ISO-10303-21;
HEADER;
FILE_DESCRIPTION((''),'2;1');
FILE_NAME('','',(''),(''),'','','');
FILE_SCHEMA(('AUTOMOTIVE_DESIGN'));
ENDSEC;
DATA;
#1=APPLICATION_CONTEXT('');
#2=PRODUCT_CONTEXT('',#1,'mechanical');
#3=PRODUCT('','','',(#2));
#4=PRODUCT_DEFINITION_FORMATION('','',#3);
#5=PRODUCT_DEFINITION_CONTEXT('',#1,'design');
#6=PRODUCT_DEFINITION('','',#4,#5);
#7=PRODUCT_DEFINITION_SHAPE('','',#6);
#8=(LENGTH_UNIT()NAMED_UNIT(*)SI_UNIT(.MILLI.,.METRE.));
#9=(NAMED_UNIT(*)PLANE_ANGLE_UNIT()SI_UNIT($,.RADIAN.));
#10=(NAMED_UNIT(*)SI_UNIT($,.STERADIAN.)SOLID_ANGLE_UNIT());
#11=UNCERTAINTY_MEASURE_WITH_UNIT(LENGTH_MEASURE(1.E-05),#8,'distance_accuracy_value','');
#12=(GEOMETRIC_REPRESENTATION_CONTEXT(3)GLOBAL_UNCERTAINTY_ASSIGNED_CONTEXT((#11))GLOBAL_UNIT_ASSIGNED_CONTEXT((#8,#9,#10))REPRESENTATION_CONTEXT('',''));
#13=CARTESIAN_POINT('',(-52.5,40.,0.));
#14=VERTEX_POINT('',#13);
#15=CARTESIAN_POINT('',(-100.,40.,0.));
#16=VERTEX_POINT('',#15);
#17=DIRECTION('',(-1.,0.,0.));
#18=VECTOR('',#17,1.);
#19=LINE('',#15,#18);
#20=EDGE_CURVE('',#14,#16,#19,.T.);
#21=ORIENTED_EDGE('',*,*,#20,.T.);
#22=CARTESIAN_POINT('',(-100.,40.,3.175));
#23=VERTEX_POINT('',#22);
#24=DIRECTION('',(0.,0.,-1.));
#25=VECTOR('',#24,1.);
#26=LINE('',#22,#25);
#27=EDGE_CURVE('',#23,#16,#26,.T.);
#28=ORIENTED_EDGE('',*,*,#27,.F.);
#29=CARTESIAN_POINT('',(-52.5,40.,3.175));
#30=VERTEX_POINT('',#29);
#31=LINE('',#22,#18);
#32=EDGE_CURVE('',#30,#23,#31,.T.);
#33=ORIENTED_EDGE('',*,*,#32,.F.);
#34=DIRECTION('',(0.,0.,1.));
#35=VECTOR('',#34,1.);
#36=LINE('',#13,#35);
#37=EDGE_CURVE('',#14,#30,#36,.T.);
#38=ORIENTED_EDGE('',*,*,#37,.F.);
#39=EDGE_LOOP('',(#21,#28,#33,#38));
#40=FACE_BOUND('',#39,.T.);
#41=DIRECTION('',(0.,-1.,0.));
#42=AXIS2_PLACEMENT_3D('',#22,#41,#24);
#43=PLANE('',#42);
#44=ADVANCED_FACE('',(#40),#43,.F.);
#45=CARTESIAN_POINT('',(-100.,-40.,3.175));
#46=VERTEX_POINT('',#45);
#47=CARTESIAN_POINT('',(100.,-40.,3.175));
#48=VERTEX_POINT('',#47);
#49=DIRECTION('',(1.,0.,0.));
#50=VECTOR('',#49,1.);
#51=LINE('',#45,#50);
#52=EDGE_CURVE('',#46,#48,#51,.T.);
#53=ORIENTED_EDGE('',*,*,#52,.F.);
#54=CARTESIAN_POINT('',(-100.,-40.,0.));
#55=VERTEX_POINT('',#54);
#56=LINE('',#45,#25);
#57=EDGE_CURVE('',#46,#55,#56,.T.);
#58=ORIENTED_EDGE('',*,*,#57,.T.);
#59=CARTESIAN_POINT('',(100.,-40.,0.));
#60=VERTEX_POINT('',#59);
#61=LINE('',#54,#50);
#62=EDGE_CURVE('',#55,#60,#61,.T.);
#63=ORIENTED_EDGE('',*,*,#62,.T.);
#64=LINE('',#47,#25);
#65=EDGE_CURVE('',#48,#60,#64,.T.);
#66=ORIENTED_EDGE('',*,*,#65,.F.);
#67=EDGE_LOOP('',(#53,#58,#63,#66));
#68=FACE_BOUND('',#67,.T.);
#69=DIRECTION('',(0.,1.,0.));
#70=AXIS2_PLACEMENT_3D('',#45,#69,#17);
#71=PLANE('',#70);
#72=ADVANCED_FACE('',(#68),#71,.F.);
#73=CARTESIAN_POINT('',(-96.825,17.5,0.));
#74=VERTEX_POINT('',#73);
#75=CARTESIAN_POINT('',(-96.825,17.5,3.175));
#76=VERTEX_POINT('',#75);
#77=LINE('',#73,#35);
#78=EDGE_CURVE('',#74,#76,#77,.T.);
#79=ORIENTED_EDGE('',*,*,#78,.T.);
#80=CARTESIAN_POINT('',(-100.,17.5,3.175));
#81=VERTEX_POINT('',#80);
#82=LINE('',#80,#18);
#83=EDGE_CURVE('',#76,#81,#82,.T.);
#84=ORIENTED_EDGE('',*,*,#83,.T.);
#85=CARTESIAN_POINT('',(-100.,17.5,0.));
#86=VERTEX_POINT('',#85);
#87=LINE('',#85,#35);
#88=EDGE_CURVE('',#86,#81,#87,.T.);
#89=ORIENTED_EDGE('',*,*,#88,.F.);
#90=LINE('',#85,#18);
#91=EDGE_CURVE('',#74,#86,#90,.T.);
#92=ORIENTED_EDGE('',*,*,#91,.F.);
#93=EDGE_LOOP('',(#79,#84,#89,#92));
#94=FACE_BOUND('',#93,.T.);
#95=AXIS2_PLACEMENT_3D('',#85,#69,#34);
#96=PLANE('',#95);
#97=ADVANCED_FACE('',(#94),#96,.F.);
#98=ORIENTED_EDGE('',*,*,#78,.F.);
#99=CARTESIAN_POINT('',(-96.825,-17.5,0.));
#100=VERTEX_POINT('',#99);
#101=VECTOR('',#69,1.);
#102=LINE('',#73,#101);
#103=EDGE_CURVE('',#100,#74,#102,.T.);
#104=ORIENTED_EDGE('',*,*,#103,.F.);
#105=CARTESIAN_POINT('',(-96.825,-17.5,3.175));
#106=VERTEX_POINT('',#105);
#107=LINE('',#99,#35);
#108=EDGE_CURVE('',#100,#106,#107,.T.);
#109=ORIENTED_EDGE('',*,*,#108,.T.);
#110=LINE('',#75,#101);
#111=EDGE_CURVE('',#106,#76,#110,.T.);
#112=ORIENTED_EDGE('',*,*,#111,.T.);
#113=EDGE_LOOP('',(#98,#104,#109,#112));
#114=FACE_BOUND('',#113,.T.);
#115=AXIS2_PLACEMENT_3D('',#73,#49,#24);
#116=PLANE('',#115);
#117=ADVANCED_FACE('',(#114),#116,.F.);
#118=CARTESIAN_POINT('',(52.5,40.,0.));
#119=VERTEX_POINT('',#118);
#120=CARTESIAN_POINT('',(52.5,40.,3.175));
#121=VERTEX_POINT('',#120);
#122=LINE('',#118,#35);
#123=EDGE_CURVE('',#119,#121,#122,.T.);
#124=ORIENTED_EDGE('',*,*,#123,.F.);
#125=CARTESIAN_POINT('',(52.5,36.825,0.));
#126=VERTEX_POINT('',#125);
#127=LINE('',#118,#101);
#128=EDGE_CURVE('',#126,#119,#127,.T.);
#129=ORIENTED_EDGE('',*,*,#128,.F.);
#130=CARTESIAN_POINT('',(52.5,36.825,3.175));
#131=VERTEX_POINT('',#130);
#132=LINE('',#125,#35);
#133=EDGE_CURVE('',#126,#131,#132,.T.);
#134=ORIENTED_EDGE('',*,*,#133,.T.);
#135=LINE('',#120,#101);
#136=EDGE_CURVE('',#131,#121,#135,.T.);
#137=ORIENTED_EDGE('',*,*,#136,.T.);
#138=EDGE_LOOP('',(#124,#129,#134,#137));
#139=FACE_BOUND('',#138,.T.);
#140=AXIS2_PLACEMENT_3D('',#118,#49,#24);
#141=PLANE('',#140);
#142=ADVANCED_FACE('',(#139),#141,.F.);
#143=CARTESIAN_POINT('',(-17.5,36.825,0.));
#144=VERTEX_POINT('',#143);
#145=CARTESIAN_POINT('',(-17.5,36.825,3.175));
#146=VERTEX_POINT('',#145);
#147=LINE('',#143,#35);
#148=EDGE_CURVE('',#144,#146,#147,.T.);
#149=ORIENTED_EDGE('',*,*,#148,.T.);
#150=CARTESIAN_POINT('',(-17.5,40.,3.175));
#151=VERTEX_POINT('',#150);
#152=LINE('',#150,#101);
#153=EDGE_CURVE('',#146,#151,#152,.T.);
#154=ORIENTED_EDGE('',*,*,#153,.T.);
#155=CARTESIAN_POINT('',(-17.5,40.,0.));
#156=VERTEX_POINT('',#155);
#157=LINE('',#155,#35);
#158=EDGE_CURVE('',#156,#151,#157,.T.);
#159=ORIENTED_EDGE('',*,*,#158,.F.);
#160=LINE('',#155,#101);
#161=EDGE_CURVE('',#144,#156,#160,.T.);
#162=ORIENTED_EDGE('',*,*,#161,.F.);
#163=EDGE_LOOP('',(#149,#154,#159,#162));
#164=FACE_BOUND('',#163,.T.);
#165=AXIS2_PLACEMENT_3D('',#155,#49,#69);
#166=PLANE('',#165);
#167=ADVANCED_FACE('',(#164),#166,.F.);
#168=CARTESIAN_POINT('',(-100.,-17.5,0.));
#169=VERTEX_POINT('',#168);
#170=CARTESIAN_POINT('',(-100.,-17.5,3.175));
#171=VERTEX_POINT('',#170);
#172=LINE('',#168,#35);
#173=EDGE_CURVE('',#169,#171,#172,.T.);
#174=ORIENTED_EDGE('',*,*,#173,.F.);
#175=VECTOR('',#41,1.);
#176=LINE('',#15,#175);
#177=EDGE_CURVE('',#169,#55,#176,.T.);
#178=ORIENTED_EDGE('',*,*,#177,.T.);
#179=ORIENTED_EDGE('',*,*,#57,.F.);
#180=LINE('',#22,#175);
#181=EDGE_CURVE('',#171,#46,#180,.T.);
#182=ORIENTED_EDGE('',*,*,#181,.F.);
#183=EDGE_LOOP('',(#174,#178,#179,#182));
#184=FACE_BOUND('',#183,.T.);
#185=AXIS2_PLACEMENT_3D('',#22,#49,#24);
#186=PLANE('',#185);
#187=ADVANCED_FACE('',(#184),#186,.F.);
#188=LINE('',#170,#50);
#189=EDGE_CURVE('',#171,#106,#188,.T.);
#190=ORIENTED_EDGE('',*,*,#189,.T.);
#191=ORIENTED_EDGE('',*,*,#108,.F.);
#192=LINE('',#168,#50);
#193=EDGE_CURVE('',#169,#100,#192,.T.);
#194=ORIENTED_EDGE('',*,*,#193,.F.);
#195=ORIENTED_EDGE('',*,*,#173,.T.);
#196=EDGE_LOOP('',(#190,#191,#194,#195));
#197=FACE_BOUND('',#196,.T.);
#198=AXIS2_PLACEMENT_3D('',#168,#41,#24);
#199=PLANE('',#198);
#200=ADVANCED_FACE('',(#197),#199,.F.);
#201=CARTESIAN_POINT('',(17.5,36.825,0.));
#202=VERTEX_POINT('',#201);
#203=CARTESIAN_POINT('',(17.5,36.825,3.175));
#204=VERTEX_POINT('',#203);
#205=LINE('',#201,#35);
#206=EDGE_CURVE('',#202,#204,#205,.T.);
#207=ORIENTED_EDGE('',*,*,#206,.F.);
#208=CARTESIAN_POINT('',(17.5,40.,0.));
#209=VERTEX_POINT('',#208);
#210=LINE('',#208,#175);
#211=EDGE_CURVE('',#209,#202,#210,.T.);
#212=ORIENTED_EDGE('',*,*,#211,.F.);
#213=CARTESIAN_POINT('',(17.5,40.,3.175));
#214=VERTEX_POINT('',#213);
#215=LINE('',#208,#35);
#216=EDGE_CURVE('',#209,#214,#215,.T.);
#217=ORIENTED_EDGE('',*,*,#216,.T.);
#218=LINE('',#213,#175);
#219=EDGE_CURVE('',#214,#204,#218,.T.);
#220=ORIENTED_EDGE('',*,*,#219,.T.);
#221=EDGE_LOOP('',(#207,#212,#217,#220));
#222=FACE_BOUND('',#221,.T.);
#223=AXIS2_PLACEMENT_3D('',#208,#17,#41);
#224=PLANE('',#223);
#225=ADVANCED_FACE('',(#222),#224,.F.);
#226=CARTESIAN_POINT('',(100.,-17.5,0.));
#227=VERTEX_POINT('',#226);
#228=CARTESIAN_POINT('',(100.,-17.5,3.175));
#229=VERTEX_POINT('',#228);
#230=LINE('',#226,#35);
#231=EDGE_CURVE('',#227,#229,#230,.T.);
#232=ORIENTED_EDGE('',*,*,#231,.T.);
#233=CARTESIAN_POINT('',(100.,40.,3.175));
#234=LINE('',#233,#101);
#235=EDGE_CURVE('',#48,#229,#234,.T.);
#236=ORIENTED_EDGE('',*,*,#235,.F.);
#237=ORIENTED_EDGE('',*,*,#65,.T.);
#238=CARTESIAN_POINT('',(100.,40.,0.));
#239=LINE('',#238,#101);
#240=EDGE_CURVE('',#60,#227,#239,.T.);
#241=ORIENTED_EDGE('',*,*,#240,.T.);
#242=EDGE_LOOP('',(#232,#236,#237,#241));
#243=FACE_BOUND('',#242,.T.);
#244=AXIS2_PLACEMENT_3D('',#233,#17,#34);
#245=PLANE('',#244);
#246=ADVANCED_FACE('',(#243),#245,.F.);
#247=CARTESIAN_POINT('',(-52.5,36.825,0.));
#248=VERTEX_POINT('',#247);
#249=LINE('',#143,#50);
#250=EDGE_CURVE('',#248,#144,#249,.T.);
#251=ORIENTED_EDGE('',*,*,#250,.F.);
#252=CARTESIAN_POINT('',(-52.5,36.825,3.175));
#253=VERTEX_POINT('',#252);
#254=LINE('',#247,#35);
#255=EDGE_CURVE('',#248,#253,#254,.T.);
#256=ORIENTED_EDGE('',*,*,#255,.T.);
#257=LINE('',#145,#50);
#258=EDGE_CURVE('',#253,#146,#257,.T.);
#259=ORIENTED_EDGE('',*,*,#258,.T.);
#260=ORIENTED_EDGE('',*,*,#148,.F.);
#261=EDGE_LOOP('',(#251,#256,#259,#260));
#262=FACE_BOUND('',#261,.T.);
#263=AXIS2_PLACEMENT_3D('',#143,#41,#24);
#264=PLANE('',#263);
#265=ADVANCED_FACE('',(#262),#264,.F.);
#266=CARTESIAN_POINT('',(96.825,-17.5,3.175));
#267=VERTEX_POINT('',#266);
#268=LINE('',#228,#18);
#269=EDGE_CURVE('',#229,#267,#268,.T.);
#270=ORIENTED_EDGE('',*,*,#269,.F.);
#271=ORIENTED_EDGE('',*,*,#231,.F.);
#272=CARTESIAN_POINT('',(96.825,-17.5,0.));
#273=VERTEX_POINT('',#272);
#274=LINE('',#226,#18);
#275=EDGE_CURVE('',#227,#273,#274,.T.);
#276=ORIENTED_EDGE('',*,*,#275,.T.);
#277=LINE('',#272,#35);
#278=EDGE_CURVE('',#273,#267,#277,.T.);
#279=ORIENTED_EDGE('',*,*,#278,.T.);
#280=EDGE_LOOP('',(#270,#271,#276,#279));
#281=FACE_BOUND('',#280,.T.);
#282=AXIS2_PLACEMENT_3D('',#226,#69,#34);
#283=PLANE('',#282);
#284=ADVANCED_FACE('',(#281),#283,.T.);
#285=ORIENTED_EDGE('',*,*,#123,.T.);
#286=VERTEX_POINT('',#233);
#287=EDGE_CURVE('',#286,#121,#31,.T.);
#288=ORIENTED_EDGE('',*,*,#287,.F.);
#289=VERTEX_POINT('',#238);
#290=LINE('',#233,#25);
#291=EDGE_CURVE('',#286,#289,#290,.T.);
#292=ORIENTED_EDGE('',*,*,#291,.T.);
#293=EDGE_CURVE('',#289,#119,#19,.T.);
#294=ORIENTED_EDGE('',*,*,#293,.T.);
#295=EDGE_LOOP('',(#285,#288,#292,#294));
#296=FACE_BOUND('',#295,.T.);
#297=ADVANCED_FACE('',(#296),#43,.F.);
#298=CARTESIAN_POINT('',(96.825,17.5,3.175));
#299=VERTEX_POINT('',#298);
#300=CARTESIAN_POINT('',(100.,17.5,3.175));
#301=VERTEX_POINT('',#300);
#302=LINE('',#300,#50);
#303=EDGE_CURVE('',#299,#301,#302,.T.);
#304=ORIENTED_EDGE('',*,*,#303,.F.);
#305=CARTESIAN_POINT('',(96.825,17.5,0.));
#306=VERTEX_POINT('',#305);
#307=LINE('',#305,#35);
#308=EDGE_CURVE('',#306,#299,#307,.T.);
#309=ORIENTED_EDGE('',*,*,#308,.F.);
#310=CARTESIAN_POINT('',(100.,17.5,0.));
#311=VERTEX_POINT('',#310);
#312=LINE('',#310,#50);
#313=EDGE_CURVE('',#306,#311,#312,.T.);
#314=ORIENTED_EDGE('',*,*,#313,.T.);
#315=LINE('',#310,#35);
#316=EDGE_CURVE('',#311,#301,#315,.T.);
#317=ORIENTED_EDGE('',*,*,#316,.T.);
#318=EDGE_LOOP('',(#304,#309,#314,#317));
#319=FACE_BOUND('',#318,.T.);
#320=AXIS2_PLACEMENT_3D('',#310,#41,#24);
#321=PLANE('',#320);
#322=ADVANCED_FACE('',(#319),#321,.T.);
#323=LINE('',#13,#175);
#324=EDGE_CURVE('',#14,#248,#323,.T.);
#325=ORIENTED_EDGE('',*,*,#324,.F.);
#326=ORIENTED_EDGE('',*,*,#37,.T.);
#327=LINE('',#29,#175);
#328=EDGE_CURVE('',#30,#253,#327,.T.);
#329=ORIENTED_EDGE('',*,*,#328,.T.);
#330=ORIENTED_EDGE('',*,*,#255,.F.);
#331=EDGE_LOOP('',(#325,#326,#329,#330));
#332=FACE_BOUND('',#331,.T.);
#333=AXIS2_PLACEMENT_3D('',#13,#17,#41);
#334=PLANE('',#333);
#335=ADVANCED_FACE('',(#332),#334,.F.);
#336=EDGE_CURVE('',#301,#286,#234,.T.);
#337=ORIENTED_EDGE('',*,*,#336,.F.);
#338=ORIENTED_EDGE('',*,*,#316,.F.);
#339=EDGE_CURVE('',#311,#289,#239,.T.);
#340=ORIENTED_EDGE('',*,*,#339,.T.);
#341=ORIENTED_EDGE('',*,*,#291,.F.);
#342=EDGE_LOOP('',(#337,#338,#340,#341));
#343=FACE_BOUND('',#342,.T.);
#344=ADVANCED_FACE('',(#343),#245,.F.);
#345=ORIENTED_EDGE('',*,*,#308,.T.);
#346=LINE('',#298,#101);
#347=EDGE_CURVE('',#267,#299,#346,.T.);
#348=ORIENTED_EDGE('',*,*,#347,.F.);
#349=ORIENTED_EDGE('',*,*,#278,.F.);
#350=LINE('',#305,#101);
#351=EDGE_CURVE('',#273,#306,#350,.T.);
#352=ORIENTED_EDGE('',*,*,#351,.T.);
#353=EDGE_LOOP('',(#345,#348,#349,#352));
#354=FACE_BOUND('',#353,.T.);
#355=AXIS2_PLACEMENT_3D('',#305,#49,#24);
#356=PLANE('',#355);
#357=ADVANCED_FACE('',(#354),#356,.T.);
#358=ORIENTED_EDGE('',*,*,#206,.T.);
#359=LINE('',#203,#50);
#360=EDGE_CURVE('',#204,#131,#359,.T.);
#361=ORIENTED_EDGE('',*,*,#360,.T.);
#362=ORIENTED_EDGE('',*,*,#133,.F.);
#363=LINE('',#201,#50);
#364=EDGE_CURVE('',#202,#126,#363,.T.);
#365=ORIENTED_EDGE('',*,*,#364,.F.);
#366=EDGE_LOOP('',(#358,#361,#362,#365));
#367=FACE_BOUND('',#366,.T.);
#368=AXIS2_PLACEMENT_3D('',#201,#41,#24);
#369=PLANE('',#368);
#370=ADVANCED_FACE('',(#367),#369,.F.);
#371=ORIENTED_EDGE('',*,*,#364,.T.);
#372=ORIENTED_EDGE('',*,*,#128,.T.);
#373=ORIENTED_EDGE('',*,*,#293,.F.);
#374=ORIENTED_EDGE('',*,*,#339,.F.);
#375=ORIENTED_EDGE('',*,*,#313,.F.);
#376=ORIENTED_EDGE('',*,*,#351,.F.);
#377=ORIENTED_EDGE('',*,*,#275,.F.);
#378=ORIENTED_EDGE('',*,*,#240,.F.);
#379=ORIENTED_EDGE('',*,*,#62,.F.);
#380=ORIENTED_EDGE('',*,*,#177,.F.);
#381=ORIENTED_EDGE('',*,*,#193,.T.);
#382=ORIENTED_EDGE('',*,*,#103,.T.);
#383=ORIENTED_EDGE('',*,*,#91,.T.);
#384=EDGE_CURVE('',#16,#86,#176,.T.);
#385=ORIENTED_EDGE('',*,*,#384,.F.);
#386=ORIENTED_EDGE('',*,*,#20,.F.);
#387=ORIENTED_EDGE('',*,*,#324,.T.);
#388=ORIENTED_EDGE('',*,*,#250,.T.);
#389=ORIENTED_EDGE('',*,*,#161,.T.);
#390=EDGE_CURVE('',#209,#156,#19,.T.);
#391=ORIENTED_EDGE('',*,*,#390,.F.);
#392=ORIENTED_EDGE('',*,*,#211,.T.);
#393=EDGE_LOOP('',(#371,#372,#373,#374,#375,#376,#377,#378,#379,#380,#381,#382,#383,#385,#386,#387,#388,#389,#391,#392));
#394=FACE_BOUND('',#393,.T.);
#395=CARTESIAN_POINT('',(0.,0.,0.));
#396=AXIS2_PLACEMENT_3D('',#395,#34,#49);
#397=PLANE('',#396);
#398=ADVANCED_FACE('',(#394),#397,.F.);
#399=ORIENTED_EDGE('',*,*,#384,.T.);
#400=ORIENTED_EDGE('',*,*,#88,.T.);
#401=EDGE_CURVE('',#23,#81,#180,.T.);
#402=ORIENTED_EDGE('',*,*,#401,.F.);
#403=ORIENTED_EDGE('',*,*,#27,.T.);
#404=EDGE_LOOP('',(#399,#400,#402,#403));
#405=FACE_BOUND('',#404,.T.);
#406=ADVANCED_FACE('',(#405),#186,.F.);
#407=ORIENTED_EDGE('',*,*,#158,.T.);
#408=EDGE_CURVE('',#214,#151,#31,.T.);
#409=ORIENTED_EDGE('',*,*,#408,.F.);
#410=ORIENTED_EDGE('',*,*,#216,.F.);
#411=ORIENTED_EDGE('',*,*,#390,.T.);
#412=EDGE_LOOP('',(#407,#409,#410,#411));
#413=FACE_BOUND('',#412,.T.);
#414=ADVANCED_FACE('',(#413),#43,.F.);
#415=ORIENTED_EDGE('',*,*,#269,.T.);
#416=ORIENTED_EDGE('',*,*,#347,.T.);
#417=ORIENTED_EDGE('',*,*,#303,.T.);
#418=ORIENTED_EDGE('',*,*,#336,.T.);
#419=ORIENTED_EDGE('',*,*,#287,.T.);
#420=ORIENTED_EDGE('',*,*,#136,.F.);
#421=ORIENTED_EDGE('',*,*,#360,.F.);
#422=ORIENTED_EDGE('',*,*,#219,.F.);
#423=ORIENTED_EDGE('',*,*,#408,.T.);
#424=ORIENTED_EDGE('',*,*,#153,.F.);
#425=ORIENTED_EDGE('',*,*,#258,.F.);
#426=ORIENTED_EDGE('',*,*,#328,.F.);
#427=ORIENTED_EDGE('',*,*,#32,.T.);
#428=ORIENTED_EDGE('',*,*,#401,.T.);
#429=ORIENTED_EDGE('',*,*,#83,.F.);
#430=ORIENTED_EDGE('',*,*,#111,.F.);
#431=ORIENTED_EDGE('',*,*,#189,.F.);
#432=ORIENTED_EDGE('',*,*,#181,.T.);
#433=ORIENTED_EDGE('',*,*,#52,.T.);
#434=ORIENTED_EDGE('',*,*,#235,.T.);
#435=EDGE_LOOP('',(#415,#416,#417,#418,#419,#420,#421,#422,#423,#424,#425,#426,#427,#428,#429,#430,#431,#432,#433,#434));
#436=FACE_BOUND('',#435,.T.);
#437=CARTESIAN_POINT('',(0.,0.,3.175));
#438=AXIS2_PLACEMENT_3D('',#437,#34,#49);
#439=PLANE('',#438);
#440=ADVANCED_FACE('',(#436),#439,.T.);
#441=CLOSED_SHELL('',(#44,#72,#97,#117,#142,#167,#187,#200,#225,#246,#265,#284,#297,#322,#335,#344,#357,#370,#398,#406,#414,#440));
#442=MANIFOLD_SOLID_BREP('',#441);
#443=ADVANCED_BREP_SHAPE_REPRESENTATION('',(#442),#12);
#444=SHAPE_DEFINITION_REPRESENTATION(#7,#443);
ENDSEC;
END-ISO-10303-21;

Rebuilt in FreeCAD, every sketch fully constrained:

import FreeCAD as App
import Part
import Sketcher
Q = App.Units.Quantity

doc = App.newDocument("Part")
params = doc.addObject("Spreadsheet::Sheet", "Params")
for row, (alias, value) in enumerate([
    ("sketch1_width", "200 mm"),
    ("sketch1_height", "80 mm"),
    ("pad1_length", "3.175 mm"),
    ("sketch2_width", "35 mm"),
    ("sketch3_height", "35 mm"),
], start=1):
    params.set(f"A{row}", alias)
    params.set(f"B{row}", "=" + value)
    params.setAlias(f"B{row}", alias)

body = doc.addObject("PartDesign::Body", "Body")

# Sketch on XY plane
sketch1 = body.newObject("Sketcher::SketchObject", "Sketch")
sketch1.AttachmentSupport = (doc.getObject("XY_Plane"), [""])
sketch1.MapMode = "FlatFace"
sketch1.addGeometry(Part.LineSegment(App.Vector(-100, 40, 0), App.Vector(-100, -40, 0)), False)
sketch1.addGeometry(Part.LineSegment(App.Vector(-100, -40, 0), App.Vector(100, -40, 0)), False)
sketch1.addGeometry(Part.LineSegment(App.Vector(100, -40, 0), App.Vector(100, 40, 0)), False)
sketch1.addGeometry(Part.LineSegment(App.Vector(100, 40, 0), App.Vector(-100, 40, 0)), False)
sketch1.addConstraint(Sketcher.Constraint("Coincident", 0, 2, 1, 1))
sketch1.addConstraint(Sketcher.Constraint("Coincident", 1, 2, 2, 1))
sketch1.addConstraint(Sketcher.Constraint("Coincident", 2, 2, 3, 1))
sketch1.addConstraint(Sketcher.Constraint("Coincident", 3, 2, 0, 1))
sketch1.addConstraint(Sketcher.Constraint("Vertical", 0))
sketch1.addConstraint(Sketcher.Constraint("Horizontal", 1))
sketch1.addConstraint(Sketcher.Constraint("Vertical", 2))
sketch1.addConstraint(Sketcher.Constraint("Horizontal", 3))
sketch1.addConstraint(Sketcher.Constraint("Symmetric", 0, 2, 2, 2, -1, 1))
sketch1.addConstraint(Sketcher.Constraint("DistanceX", 1, 1, 1, 2, Q("200 mm")))
sketch1.addConstraint(Sketcher.Constraint("DistanceY", 0, 2, 0, 1, Q("80 mm")))
sketch1.setExpression("Constraints[9]", "Params.sketch1_width")
sketch1.setExpression("Constraints[10]", "Params.sketch1_height")
pad1 = body.newObject("PartDesign::Pad", "Pad")
pad1.Profile = sketch1
pad1.setExpression("Length", "Params.pad1_length")

# Sketch on XY plane
sketch2 = body.newObject("Sketcher::SketchObject", "Sketch001")
sketch2.AttachmentSupport = (doc.getObject("XY_Plane"), [""])
sketch2.MapMode = "FlatFace"
sketch2.AttachmentOffset = App.Placement(App.Vector(0, 0, 3.175), App.Rotation())
sketch2.addGeometry(Part.LineSegment(App.Vector(17.5, 40, 0), App.Vector(17.5, 36.8, 0)), False)
sketch2.addGeometry(Part.LineSegment(App.Vector(17.5, 36.8, 0), App.Vector(52.5, 36.8, 0)), False)
sketch2.addGeometry(Part.LineSegment(App.Vector(52.5, 36.8, 0), App.Vector(52.5, 40, 0)), False)
sketch2.addGeometry(Part.LineSegment(App.Vector(52.5, 40, 0), App.Vector(17.5, 40, 0)), False)
sketch2.addGeometry(Part.LineSegment(App.Vector(-52.5, 40, 0), App.Vector(-52.5, 36.8, 0)), False)
sketch2.addGeometry(Part.LineSegment(App.Vector(-52.5, 36.8, 0), App.Vector(-17.5, 36.8, 0)), False)
sketch2.addGeometry(Part.LineSegment(App.Vector(-17.5, 36.8, 0), App.Vector(-17.5, 40, 0)), False)
sketch2.addGeometry(Part.LineSegment(App.Vector(-17.5, 40, 0), App.Vector(-52.5, 40, 0)), False)
sketch2.addConstraint(Sketcher.Constraint("Coincident", 0, 2, 1, 1))
sketch2.addConstraint(Sketcher.Constraint("Coincident", 1, 2, 2, 1))
sketch2.addConstraint(Sketcher.Constraint("Coincident", 2, 2, 3, 1))
sketch2.addConstraint(Sketcher.Constraint("Coincident", 3, 2, 0, 1))
sketch2.addConstraint(Sketcher.Constraint("Coincident", 4, 2, 5, 1))
sketch2.addConstraint(Sketcher.Constraint("Coincident", 5, 2, 6, 1))
sketch2.addConstraint(Sketcher.Constraint("Coincident", 6, 2, 7, 1))
sketch2.addConstraint(Sketcher.Constraint("Coincident", 7, 2, 4, 1))
sketch2.addConstraint(Sketcher.Constraint("Vertical", 0))
sketch2.addConstraint(Sketcher.Constraint("Horizontal", 1))
sketch2.addConstraint(Sketcher.Constraint("Vertical", 2))
sketch2.addConstraint(Sketcher.Constraint("Horizontal", 3))
sketch2.addConstraint(Sketcher.Constraint("Vertical", 4))
sketch2.addConstraint(Sketcher.Constraint("Horizontal", 5))
sketch2.addConstraint(Sketcher.Constraint("Vertical", 6))
sketch2.addConstraint(Sketcher.Constraint("Horizontal", 7))
sketch2.addConstraint(Sketcher.Constraint("Symmetric", 1, 2, 4, 2, -2))
sketch2.addConstraint(Sketcher.Constraint("Symmetric", 3, 2, 6, 2, -2))
sketch2.addConstraint(Sketcher.Constraint("DistanceX", 1, 1, 1, 2, Q("35 mm")))
sketch2.addConstraint(Sketcher.Constraint("DistanceY", -1, 1, 2, 2, Q("40 mm")))
sketch2.addConstraint(Sketcher.Constraint("DistanceX", 4, 2, 0, 2, Q("70 mm")))
sketch2.addConstraint(Sketcher.Constraint("DistanceY", 0, 2, 0, 1, Q("3.175 mm")))
sketch2.setExpression("Constraints[18]", "Params.sketch2_width")
pocket1 = body.newObject("PartDesign::Pocket", "Pocket")
pocket1.Profile = sketch2
pocket1.Type = "ThroughAll"

# Sketch on XY plane
sketch3 = body.newObject("Sketcher::SketchObject", "Sketch002")
sketch3.AttachmentSupport = (doc.getObject("XY_Plane"), [""])
sketch3.MapMode = "FlatFace"
sketch3.AttachmentOffset = App.Placement(App.Vector(0, 0, 3.175), App.Rotation())
sketch3.addGeometry(Part.LineSegment(App.Vector(-100, 17.5, 0), App.Vector(-100, -17.5, 0)), False)
sketch3.addGeometry(Part.LineSegment(App.Vector(-100, -17.5, 0), App.Vector(-96.8, -17.5, 0)), False)
sketch3.addGeometry(Part.LineSegment(App.Vector(-96.8, -17.5, 0), App.Vector(-96.8, 17.5, 0)), False)
sketch3.addGeometry(Part.LineSegment(App.Vector(-96.8, 17.5, 0), App.Vector(-100, 17.5, 0)), False)
sketch3.addConstraint(Sketcher.Constraint("Coincident", 0, 2, 1, 1))
sketch3.addConstraint(Sketcher.Constraint("Coincident", 1, 2, 2, 1))
sketch3.addConstraint(Sketcher.Constraint("Coincident", 2, 2, 3, 1))
sketch3.addConstraint(Sketcher.Constraint("Coincident", 3, 2, 0, 1))
sketch3.addConstraint(Sketcher.Constraint("Vertical", 0))
sketch3.addConstraint(Sketcher.Constraint("Horizontal", 1))
sketch3.addConstraint(Sketcher.Constraint("Vertical", 2))
sketch3.addConstraint(Sketcher.Constraint("Horizontal", 3))
sketch3.addConstraint(Sketcher.Constraint("DistanceY", 0, 2, 0, 1, Q("35 mm")))
sketch3.addConstraint(Sketcher.Constraint("DistanceX", 0, 2, -1, 1, Q("100 mm")))
sketch3.addConstraint(Sketcher.Constraint("DistanceY", 0, 2, -1, 1, Q("17.5 mm")))
sketch3.addConstraint(Sketcher.Constraint("DistanceX", 1, 1, 1, 2, Q("3.175 mm")))
sketch3.setExpression("Constraints[8]", "Params.sketch3_height")
pocket2 = body.newObject("PartDesign::Pocket", "Pocket001")
pocket2.Profile = sketch3
pocket2.Type = "ThroughAll"
doc.recompute()

mirrored = body.newObject("PartDesign::Mirrored", "Mirrored")
mirrored.Originals = [pocket2]
mirrored.MirrorPlane = (doc.getObject("YZ_Plane"), [""])
body.Tip = mirrored

doc.recompute()
